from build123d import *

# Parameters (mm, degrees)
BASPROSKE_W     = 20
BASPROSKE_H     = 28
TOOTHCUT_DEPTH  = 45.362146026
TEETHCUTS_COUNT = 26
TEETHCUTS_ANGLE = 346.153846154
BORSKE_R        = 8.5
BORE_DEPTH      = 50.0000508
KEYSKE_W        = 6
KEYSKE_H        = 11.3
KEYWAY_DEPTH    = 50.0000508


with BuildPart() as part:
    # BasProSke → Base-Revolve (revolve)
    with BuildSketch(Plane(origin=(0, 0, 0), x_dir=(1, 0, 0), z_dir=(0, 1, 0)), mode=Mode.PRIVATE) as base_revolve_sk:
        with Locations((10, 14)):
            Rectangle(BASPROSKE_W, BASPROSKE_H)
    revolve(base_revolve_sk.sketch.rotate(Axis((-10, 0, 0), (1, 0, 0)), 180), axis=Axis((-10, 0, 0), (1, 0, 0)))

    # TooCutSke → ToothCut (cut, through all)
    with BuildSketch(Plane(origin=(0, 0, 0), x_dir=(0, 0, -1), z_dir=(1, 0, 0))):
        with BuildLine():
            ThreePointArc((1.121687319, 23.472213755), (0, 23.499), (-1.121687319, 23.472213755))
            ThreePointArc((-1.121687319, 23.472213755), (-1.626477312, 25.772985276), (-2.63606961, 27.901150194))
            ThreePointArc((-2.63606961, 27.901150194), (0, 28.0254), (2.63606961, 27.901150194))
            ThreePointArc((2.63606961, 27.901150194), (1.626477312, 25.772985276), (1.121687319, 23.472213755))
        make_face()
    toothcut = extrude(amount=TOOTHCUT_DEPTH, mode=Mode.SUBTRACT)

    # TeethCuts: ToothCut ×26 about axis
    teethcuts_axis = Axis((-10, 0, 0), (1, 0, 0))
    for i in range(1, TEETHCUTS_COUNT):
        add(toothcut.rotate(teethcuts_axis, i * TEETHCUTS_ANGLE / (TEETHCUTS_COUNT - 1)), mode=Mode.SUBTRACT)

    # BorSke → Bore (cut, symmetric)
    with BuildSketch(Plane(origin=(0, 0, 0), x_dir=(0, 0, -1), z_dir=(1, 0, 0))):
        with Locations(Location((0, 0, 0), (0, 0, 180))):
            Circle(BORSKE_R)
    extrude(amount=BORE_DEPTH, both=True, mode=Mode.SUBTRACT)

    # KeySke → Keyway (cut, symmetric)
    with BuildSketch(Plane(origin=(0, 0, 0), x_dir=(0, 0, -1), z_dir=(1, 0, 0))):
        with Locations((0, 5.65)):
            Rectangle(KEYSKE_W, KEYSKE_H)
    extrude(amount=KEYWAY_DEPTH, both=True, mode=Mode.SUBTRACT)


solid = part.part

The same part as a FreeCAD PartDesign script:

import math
import FreeCAD as App
import Part
import Sketcher
from FreeCAD import Vector


def add_polygon(sketch, points):
    """Adds a closed chain of lines whose ends are joined by coincident constraints."""
    first, n = sketch.GeometryCount, len(points)
    for a, b in zip(points, points[1:] + points[:1]):
        sketch.addGeometry(Part.LineSegment(App.Vector(*a, 0), App.Vector(*b, 0)), False)
    for i in range(n):
        sketch.addConstraint(Sketcher.Constraint("Coincident", first + i, 2, first + (i + 1) % n, 1))

doc = App.newDocument("Part")
params = doc.addObject("Spreadsheet::Sheet", "Params")
for row, (alias, value) in enumerate([
    ("sketch1_width", "20 mm"),
    ("sketch1_height", "28 mm"),
    ("revolution_angle", "360 deg"),
    ("sketch2_radius", "10.4 mm"),
    ("sketch3_diameter", "17 mm"),
    ("pocket2_length", "100.000102 mm"),
    ("sketch4_height", "6 mm"),
    ("sketch4_width", "11.3 mm"),
    ("pocket3_length", "100.000102 mm"),
], start=1):
    params.set(f"A{row}", alias)
    params.set(f"B{row}", "=" + value)
    params.setAlias(f"B{row}", alias)

body = doc.addObject("PartDesign::Body", "Body")

# Sketch on XZ plane
sketch1 = doc.addObject("Sketcher::SketchObject", "Sketch")
body.addObject(sketch1)
sketch1.AttachmentSupport = (doc.XZ_Plane, [""])
sketch1.MapMode = "FlatFace"
add_polygon(sketch1, [(0, -28), (0, 0), (20, 0), (20, -28)])  # lines 0-3
sketch1.addConstraint(Sketcher.Constraint("Vertical", 0))
sketch1.addConstraint(Sketcher.Constraint("Horizontal", 1))
sketch1.addConstraint(Sketcher.Constraint("Vertical", 2))
sketch1.addConstraint(Sketcher.Constraint("Horizontal", 3))
sketch1.addConstraint(Sketcher.Constraint("Coincident", 0, 2, -1, 1))
sketch1.addConstraint(Sketcher.Constraint("DistanceX", 1, 1, 1, 2, 20.0))
sketch1.addConstraint(Sketcher.Constraint("DistanceY", 0, 1, 0, 2, 28.0))
sketch1.setExpression("Constraints[9]", "Params.sketch1_width")
sketch1.setExpression("Constraints[10]", "Params.sketch1_height")
revolution = doc.addObject("PartDesign::Revolution", "Revolution")
body.addObject(revolution)
revolution.Profile = sketch1
revolution.ReferenceAxis = (sketch1, ["H_Axis"])
revolution.setExpression("Angle", "Params.revolution_angle")

# Sketch on YZ plane
sketch2 = doc.addObject("Sketcher::SketchObject", "Sketch001")
body.addObject(sketch2)
sketch2.AttachmentSupport = (doc.YZ_Plane, [""])
sketch2.MapMode = "FlatFace"
sketch2.addGeometry(Part.ArcOfCircle(Part.Circle(Vector(0, 0, 0), Vector(0, 0, 1), 23.5), math.radians(-2.74), math.radians(2.74)), False)
sketch2.addGeometry(Part.ArcOfCircle(Part.Circle(Vector(22.4, -11.5, 0), Vector(0, 0, 1), 10.4), math.radians(58), math.radians(84)), False)
sketch2.addGeometry(Part.ArcOfCircle(Part.Circle(Vector(0, 0, 0), Vector(0, 0, 1), 28), math.radians(-5.4), math.radians(5.4)), False)
sketch2.addGeometry(Part.ArcOfCircle(Part.Circle(Vector(22.4, 11.5, 0), Vector(0, 0, 1), 10.4), math.radians(-84), math.radians(-58)), False)
sketch2.addConstraint(Sketcher.Constraint("Coincident", 0, 1, 1, 2))
sketch2.addConstraint(Sketcher.Constraint("Coincident", 1, 1, 2, 1))
sketch2.addConstraint(Sketcher.Constraint("Coincident", 2, 2, 3, 2))
sketch2.addConstraint(Sketcher.Constraint("Coincident", 3, 1, 0, 2))
sketch2.addConstraint(Sketcher.Constraint("Coincident", 0, 3, -1, 1))
sketch2.addConstraint(Sketcher.Constraint("Coincident", 2, 3, -1, 1))
sketch2.addConstraint(Sketcher.Constraint("Equal", 1, 3))
sketch2.addConstraint(Sketcher.Constraint("Symmetric", 1, 3, 3, 3, -1))
sketch2.addConstraint(Sketcher.Constraint("Radius", 1, 10.4))
sketch2.addConstraint(Sketcher.Constraint("Radius", 0, 23.499))
sketch2.addConstraint(Sketcher.Constraint("Radius", 2, 28.0254))
sketch2.addConstraint(Sketcher.Constraint("DistanceY", 0, 1, 3, 3, 12.588801))
sketch2.addConstraint(Sketcher.Constraint("DistanceX", -1, 1, 1, 1, 27.90115))
sketch2.setExpression("Constraints[8]", "Params.sketch2_radius")
pocket1 = doc.addObject("PartDesign::Pocket", "Pocket")
body.addObject(pocket1)
pocket1.Profile = sketch2
pocket1.Type = "ThroughAll"
pocket1.Reversed = True
doc.recompute()

polarpattern = doc.addObject("PartDesign::PolarPattern", "PolarPattern")
body.addObject(polarpattern)
polarpattern.Originals = [pocket1]
polarpattern.Axis = (doc.X_Axis, [""])
polarpattern.Angle = 360
polarpattern.Occurrences = 26
body.Tip = polarpattern

# Sketch on YZ plane
sketch3 = doc.addObject("Sketcher::SketchObject", "Sketch002")
body.addObject(sketch3)
sketch3.AttachmentSupport = (doc.YZ_Plane, [""])
sketch3.MapMode = "FlatFace"
sketch3.addGeometry(Part.Circle(Vector(0, 0, 0), Vector(0, 0, 1), 8), False)
sketch3.addConstraint(Sketcher.Constraint("Coincident", 0, 3, -1, 1))
sketch3.addConstraint(Sketcher.Constraint("Diameter", 0, 17.0))
sketch3.setExpression("Constraints[1]", "Params.sketch3_diameter")
pocket2 = doc.addObject("PartDesign::Pocket", "Pocket001")
body.addObject(pocket2)
pocket2.Profile = sketch3
pocket2.setExpression("Length", "Params.pocket2_length")
pocket2.Midplane = True

# Sketch on YZ plane
sketch4 = doc.addObject("Sketcher::SketchObject", "Sketch003")
body.addObject(sketch4)
sketch4.AttachmentSupport = (doc.YZ_Plane, [""])
sketch4.MapMode = "FlatFace"
add_polygon(sketch4, [(11, 3), (0, 3), (0, -3), (11, -3)])  # lines 0-3
sketch4.addConstraint(Sketcher.Constraint("Horizontal", 0))
sketch4.addConstraint(Sketcher.Constraint("Vertical", 1))
sketch4.addConstraint(Sketcher.Constraint("Horizontal", 2))
sketch4.addConstraint(Sketcher.Constraint("Vertical", 3))
sketch4.addConstraint(Sketcher.Constraint("Symmetric", 0, 2, 1, 2, -1, 1))
sketch4.addConstraint(Sketcher.Constraint("DistanceY", 1, 2, 1, 1, 6.0))
sketch4.addConstraint(Sketcher.Constraint("DistanceX", 0, 2, 0, 1, 11.3))
sketch4.setExpression("Constraints[9]", "Params.sketch4_height")
sketch4.setExpression("Constraints[10]", "Params.sketch4_width")
pocket3 = doc.addObject("PartDesign::Pocket", "Pocket002")
body.addObject(pocket3)
pocket3.Profile = sketch4
pocket3.setExpression("Length", "Params.pocket3_length")
pocket3.Midplane = True

doc.recompute()
